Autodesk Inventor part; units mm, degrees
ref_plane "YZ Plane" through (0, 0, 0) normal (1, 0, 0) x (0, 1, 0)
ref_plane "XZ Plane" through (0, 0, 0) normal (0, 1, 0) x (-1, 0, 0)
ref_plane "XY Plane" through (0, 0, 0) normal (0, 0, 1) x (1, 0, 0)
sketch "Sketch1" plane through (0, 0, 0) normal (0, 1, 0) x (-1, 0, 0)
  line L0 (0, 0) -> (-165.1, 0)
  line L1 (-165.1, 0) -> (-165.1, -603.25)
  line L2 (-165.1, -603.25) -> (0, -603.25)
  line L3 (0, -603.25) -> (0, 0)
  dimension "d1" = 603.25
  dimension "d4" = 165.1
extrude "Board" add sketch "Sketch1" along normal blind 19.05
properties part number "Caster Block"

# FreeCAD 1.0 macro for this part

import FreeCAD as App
import Part
import Sketcher
from FreeCAD import Vector
Q = App.Units.Quantity


def add_polygon(sketch, points):
    """Adds a closed chain of lines whose ends are joined by coincident constraints."""
    first, n = sketch.GeometryCount, len(points)
    for a, b in zip(points, points[1:] + points[:1]):
        sketch.addGeometry(Part.LineSegment(App.Vector(*a, 0), App.Vector(*b, 0)), False)
    for i in range(n):
        sketch.addConstraint(Sketcher.Constraint("Coincident", first + i, 2, first + (i + 1) % n, 1))

doc = App.newDocument("Part")
params = doc.addObject("Spreadsheet::Sheet", "Params")
for row, (alias, value) in enumerate([
    ("sketch1_width", "6.5 in"),
    ("sketch1_height", "23.75 in"),
    ("pad1_length", "0.75 in"),
], start=1):
    params.set(f"A{row}", alias)
    params.set(f"B{row}", "=" + value)
    params.setAlias(f"B{row}", alias)

body = doc.addObject("PartDesign::Body", "Body")

# Sketch on XZ plane
sketch1 = body.newObject("Sketcher::SketchObject", "Sketch")
sketch1.AttachmentSupport = (doc.getObject("XZ_Plane"), [""])
sketch1.MapMode = "FlatFace"
add_polygon(sketch1, [(0, -603.25), (0, 0), (165.1, 0), (165.1, -603.25)])  # lines 0-3
sketch1.addConstraint([
    Sketcher.Constraint("Vertical", 0),
    Sketcher.Constraint("Horizontal", 1),
    Sketcher.Constraint("Vertical", 2),
    Sketcher.Constraint("Horizontal", 3),
    Sketcher.Constraint("Coincident", 0, 2, -1, 1),
    Sketcher.Constraint("DistanceX", 1, 1, 1, 2, Q("6.5 in")),
    Sketcher.Constraint("DistanceY", 0, 1, 0, 2, Q("23.75 in")),
])
sketch1.setExpression("Constraints[9]", "Params.sketch1_width")
sketch1.setExpression("Constraints[10]", "Params.sketch1_height")
pad1 = body.newObject("PartDesign::Pad", "Pad")
pad1.Profile = sketch1
pad1.setExpression("Length", "Params.pad1_length")
pad1.Reversed = True

doc.recompute()
